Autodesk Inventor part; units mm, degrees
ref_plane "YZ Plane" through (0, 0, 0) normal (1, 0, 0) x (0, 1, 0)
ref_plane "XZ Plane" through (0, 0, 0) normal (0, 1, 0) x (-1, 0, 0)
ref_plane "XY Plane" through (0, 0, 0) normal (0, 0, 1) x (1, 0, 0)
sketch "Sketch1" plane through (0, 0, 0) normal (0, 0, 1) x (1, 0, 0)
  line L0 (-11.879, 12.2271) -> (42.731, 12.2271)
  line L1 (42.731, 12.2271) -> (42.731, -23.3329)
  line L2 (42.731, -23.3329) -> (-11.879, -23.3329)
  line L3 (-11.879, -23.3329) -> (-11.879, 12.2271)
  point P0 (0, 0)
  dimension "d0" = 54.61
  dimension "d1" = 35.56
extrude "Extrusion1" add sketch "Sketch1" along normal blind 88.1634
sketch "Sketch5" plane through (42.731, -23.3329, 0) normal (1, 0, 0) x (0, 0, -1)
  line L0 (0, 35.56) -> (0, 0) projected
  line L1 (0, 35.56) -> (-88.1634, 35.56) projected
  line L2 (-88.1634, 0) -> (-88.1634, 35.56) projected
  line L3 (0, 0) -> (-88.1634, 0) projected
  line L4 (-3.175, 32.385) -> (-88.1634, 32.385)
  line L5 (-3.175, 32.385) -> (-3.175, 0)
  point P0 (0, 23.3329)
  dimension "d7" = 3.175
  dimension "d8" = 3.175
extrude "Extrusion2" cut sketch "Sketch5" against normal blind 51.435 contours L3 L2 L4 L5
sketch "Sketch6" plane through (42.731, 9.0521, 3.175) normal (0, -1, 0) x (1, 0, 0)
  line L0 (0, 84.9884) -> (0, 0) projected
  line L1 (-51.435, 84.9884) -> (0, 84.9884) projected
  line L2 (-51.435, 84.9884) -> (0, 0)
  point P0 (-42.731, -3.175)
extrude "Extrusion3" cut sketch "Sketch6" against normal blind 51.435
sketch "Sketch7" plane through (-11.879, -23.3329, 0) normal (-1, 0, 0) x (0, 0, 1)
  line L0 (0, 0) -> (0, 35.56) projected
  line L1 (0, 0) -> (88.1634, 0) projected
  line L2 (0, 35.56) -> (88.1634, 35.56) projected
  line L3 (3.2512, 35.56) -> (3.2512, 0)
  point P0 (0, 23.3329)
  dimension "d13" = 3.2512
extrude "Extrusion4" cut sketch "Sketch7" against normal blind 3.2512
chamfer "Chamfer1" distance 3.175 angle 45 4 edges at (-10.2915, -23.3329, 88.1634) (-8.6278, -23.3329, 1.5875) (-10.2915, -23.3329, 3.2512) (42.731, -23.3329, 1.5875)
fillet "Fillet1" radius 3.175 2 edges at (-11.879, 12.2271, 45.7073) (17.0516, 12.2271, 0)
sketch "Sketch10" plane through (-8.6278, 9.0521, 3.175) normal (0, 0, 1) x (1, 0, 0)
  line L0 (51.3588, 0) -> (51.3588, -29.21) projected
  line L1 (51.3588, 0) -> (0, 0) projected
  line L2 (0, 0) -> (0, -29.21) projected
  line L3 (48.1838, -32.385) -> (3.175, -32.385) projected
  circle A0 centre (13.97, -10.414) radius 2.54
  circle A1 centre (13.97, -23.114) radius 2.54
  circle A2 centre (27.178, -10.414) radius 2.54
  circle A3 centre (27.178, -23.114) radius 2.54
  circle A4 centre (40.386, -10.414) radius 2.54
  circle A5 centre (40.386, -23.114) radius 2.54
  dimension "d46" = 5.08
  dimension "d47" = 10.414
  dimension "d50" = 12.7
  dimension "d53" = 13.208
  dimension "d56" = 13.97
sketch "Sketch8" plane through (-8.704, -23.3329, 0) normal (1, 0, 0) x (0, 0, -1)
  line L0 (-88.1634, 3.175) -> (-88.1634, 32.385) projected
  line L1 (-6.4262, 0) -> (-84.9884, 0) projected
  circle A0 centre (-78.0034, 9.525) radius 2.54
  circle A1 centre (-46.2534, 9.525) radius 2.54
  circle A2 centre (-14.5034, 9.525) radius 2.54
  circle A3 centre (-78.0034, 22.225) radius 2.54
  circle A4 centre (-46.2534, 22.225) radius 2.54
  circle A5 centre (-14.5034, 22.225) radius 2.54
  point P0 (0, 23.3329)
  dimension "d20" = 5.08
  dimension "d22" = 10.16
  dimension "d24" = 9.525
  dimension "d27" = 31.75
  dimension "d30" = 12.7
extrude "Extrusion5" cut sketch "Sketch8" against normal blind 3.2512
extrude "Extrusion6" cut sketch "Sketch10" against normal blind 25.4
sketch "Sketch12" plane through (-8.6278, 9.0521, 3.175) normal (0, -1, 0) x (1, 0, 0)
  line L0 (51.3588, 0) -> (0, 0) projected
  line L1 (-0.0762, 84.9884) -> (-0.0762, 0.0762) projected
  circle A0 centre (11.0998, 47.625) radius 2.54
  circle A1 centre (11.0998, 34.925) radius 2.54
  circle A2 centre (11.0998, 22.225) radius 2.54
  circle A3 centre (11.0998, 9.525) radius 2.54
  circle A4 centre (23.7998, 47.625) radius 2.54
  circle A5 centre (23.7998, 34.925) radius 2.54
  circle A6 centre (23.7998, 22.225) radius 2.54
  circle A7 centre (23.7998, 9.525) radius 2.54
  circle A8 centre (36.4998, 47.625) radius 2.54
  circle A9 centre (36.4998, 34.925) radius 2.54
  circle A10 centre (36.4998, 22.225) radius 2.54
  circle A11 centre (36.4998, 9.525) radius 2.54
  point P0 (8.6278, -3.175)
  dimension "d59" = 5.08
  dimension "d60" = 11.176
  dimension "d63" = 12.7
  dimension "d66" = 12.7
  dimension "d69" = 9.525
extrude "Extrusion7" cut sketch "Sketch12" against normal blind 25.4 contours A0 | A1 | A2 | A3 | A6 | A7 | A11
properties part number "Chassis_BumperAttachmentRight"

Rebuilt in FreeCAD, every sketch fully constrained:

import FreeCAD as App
import Part
import Sketcher
Q = App.Units.Quantity


def edges_at(feature, points):
    """Names of the edges that pass closest to the given points."""
    edges = feature.Shape.Edges
    near = lambda p: min(range(len(edges)), key=lambda i: edges[i].distToShape(Part.Vertex(*p))[0])
    return sorted({f"Edge{near(p) + 1}" for p in points})


def add_polygon(sketch, points):
    """Adds a closed chain of lines whose ends are joined by coincident constraints."""
    first, n = sketch.GeometryCount, len(points)
    for a, b in zip(points, points[1:] + points[:1]):
        sketch.addGeometry(Part.LineSegment(App.Vector(*a, 0), App.Vector(*b, 0)), False)
    for i in range(n):
        sketch.addConstraint(Sketcher.Constraint("Coincident", first + i, 2, first + (i + 1) % n, 1))

doc = App.newDocument("Part")
params = doc.addObject("Spreadsheet::Sheet", "Params")
for row, (alias, value) in enumerate([
    ("sketch1_height", "1.4 in"),
    ("sketch1_width", "2.15 in"),
    ("pad1_length", "3.471 in"),
    ("sketch2_width", "1.275 in"),
    ("sketch2_height", "3.346 in"),
    ("pocket1_length", "2.025 in"),
    ("sketch3_width", "2.025 in"),
    ("sketch3_height", "3.346 in"),
    ("pocket2_length", "2.025 in"),
    ("sketch4_height", "0.128 in"),
    ("sketch4_width", "1.4 in"),
    ("pocket3_length", "0.128 in"),
    ("chamfer_size", "0.125 in"),
    ("fillet_radius", "0.125 in"),
    ("sketch5_diameter", "0.2 in"),
    ("pocket4_length", "0.128 in"),
    ("sketch6_diameter", "0.2 in"),
    ("pocket5_length", "1 in"),
    ("sketch7_diameter", "0.2 in"),
    ("pocket6_length", "1 in"),
], start=1):
    params.set(f"A{row}", alias)
    params.set(f"B{row}", "=" + value)
    params.setAlias(f"B{row}", alias)

body = doc.addObject("PartDesign::Body", "Body")

# Sketch on XY plane
sketch1 = body.newObject("Sketcher::SketchObject", "Sketch")
sketch1.AttachmentSupport = (doc.getObject("XY_Plane"), [""])
sketch1.MapMode = "FlatFace"
add_polygon(sketch1, [(43, 12), (-12, 12), (-12, -23), (43, -23)])  # lines 0-3
sketch1.addConstraint(Sketcher.Constraint("Horizontal", 0))
sketch1.addConstraint(Sketcher.Constraint("Vertical", 1))
sketch1.addConstraint(Sketcher.Constraint("Horizontal", 2))
sketch1.addConstraint(Sketcher.Constraint("Vertical", 3))
sketch1.addConstraint(Sketcher.Constraint("DistanceY", 1, 2, 1, 1, Q("1.4 in")))
sketch1.addConstraint(Sketcher.Constraint("DistanceX", 0, 2, 0, 1, Q("2.15 in")))
sketch1.addConstraint(Sketcher.Constraint("DistanceX", 0, 2, -1, 1, Q("11.879 mm")))
sketch1.addConstraint(Sketcher.Constraint("DistanceY", -1, 1, 0, 2, Q("12.227 mm")))
sketch1.setExpression("Constraints[8]", "Params.sketch1_height")
sketch1.setExpression("Constraints[9]", "Params.sketch1_width")
pad1 = body.newObject("PartDesign::Pad", "Pad")
pad1.Profile = sketch1
pad1.setExpression("Length", "Params.pad1_length")

# Sketch on YZ plane
sketch2 = body.newObject("Sketcher::SketchObject", "Sketch001")
sketch2.AttachmentSupport = (doc.getObject("YZ_Plane"), [""])
sketch2.MapMode = "FlatFace"
sketch2.AttachmentOffset = App.Placement(App.Vector(0, 0, 42.731), App.Rotation())
add_polygon(sketch2, [(-23, 88), (-23, 3), (9, 3), (9, 88)])  # lines 0-3
sketch2.addConstraint(Sketcher.Constraint("Vertical", 0))
sketch2.addConstraint(Sketcher.Constraint("Horizontal", 1))
sketch2.addConstraint(Sketcher.Constraint("Vertical", 2))
sketch2.addConstraint(Sketcher.Constraint("Horizontal", 3))
sketch2.addConstraint(Sketcher.Constraint("DistanceY", -1, 1, 0, 2, Q("0.125 in")))
sketch2.addConstraint(Sketcher.Constraint("DistanceX", 1, 1, 1, 2, Q("1.275 in")))
sketch2.addConstraint(Sketcher.Constraint("DistanceY", 0, 2, 0, 1, Q("3.346 in")))
sketch2.addConstraint(Sketcher.Constraint("DistanceX", 0, 2, -1, 1, Q("23.333 mm")))
sketch2.setExpression("Constraints[9]", "Params.sketch2_width")
sketch2.setExpression("Constraints[10]", "Params.sketch2_height")
pocket1 = body.newObject("PartDesign::Pocket", "Pocket")
pocket1.Profile = sketch2
pocket1.setExpression("Length", "Params.pocket1_length")

# Sketch on XZ plane
sketch3 = body.newObject("Sketcher::SketchObject", "Sketch002")
sketch3.AttachmentSupport = (doc.getObject("XZ_Plane"), [""])
sketch3.MapMode = "FlatFace"
sketch3.AttachmentOffset = App.Placement(App.Vector(0, 0, -9.0521), App.Rotation())
add_polygon(sketch3, [(43, 3), (43, 88), (-9, 88)])  # lines 0-2
sketch3.addConstraint(Sketcher.Constraint("Vertical", 0))
sketch3.addConstraint(Sketcher.Constraint("Horizontal", 1))
sketch3.addConstraint(Sketcher.Constraint("DistanceX", 1, 2, 1, 1, Q("2.025 in")))
sketch3.addConstraint(Sketcher.Constraint("DistanceY", 0, 1, 0, 2, Q("3.346 in")))
sketch3.addConstraint(Sketcher.Constraint("DistanceY", -1, 1, 0, 2, Q("3.471 in")))
sketch3.addConstraint(Sketcher.Constraint("DistanceX", -1, 1, 0, 2, Q("42.731 mm")))
sketch3.setExpression("Constraints[5]", "Params.sketch3_width")
sketch3.setExpression("Constraints[6]", "Params.sketch3_height")
pocket2 = body.newObject("PartDesign::Pocket", "Pocket001")
pocket2.Profile = sketch3
pocket2.setExpression("Length", "Params.pocket2_length")

# Sketch on YZ plane
sketch4 = body.newObject("Sketcher::SketchObject", "Sketch003")
sketch4.AttachmentSupport = (doc.getObject("YZ_Plane"), [""])
sketch4.MapMode = "FlatFace"
sketch4.AttachmentOffset = App.Placement(App.Vector(0, 0, -11.879), App.Rotation())
add_polygon(sketch4, [(12.2, 0), (-23.3, 0), (-23.3, 3.3), (12.2, 3.3)])  # lines 0-3
sketch4.addConstraint(Sketcher.Constraint("Horizontal", 0))
sketch4.addConstraint(Sketcher.Constraint("Vertical", 1))
sketch4.addConstraint(Sketcher.Constraint("Horizontal", 2))
sketch4.addConstraint(Sketcher.Constraint("Vertical", 3))
sketch4.addConstraint(Sketcher.Constraint("PointOnObject", 0, 2, -1))
sketch4.addConstraint(Sketcher.Constraint("DistanceY", 1, 1, 1, 2, Q("0.128 in")))
sketch4.addConstraint(Sketcher.Constraint("DistanceX", 0, 2, 0, 1, Q("1.4 in")))
sketch4.addConstraint(Sketcher.Constraint("DistanceX", 0, 2, -1, 1, Q("23.333 mm")))
sketch4.setExpression("Constraints[9]", "Params.sketch4_height")
sketch4.setExpression("Constraints[10]", "Params.sketch4_width")
pocket3 = body.newObject("PartDesign::Pocket", "Pocket002")
pocket3.Profile = sketch4
pocket3.setExpression("Length", "Params.pocket3_length")
pocket3.Reversed = True
doc.recompute()

chamfer = body.newObject("PartDesign::Chamfer", "Chamfer")
chamfer.Base = (pocket3, edges_at(pocket3, [
    (-10.291, -23.333, 88.163),
    (-8.628, -23.333, 1.587),
    (-10.291, -23.333, 3.251),
    (42.731, -23.333, 1.587),
]))
chamfer.setExpression("Size", "Params.chamfer_size")
doc.recompute()

fillet = body.newObject("PartDesign::Fillet", "Fillet")
fillet.Base = (chamfer, edges_at(chamfer, [(-11.879, 12.227, 45.707), (17.052, 12.227, 0)]))
fillet.setExpression("Radius", "Params.fillet_radius")

# Sketch on YZ plane
sketch5 = body.newObject("Sketcher::SketchObject", "Sketch004")
sketch5.AttachmentSupport = (doc.getObject("YZ_Plane"), [""])
sketch5.MapMode = "FlatFace"
sketch5.AttachmentOffset = App.Placement(App.Vector(0, 0, -8.704), App.Rotation())
sketch5.addGeometry(Part.Circle(App.Vector(-13.8, 78, 0), App.Vector(0, 0, 1), 2.5), False)
sketch5.addGeometry(Part.Circle(App.Vector(-13.8, 46.3, 0), App.Vector(0, 0, 1), 2.5), False)
sketch5.addGeometry(Part.Circle(App.Vector(-13.8, 14.5, 0), App.Vector(0, 0, 1), 2.5), False)
sketch5.addGeometry(Part.Circle(App.Vector(-1.1, 78, 0), App.Vector(0, 0, 1), 2.5), False)
sketch5.addGeometry(Part.Circle(App.Vector(-1.1, 46.3, 0), App.Vector(0, 0, 1), 2.5), False)
sketch5.addGeometry(Part.Circle(App.Vector(-1.1, 14.5, 0), App.Vector(0, 0, 1), 2.5), False)
sketch5.addConstraint(Sketcher.Constraint("Equal", 0, 1))
sketch5.addConstraint(Sketcher.Constraint("Equal", 1, 2))
sketch5.addConstraint(Sketcher.Constraint("Equal", 2, 3))
sketch5.addConstraint(Sketcher.Constraint("Equal", 3, 4))
sketch5.addConstraint(Sketcher.Constraint("Equal", 4, 5))
sketch5.addConstraint(Sketcher.Constraint("Horizontal", 0, 3, 3, 3))
sketch5.addConstraint(Sketcher.Constraint("Horizontal", 1, 3, 4, 3))
sketch5.addConstraint(Sketcher.Constraint("Horizontal", 2, 3, 5, 3))
sketch5.addConstraint(Sketcher.Constraint("Vertical", 0, 3, 1, 3))
sketch5.addConstraint(Sketcher.Constraint("Vertical", 1, 3, 2, 3))
sketch5.addConstraint(Sketcher.Constraint("Vertical", 3, 3, 4, 3))
sketch5.addConstraint(Sketcher.Constraint("Vertical", 4, 3, 5, 3))
sketch5.addConstraint(Sketcher.Constraint("Diameter", 0, Q("0.2 in")))
sketch5.addConstraint(Sketcher.Constraint("DistanceX", 0, 3, 3, 3, Q("0.5 in")))
sketch5.addConstraint(Sketcher.Constraint("DistanceY", 1, 3, 0, 3, Q("1.25 in")))
sketch5.addConstraint(Sketcher.Constraint("DistanceY", 2, 3, 1, 3, Q("1.25 in")))
sketch5.addConstraint(Sketcher.Constraint("DistanceY", -1, 1, 0, 3, Q("3.071 in")))
sketch5.addConstraint(Sketcher.Constraint("DistanceX", 0, 3, -1, 1, Q("13.808 mm")))
sketch5.setExpression("Constraints[12]", "Params.sketch5_diameter")
pocket4 = body.newObject("PartDesign::Pocket", "Pocket003")
pocket4.Profile = sketch5
pocket4.setExpression("Length", "Params.pocket4_length")

# Sketch on XY plane
sketch6 = body.newObject("Sketcher::SketchObject", "Sketch005")
sketch6.AttachmentSupport = (doc.getObject("XY_Plane"), [""])
sketch6.MapMode = "FlatFace"
sketch6.AttachmentOffset = App.Placement(App.Vector(0, 0, 0.125 * 25.4), App.Rotation())
sketch6.addGeometry(Part.Circle(App.Vector(5.3, -1.4, 0), App.Vector(0, 0, 1), 2.5), False)
sketch6.addGeometry(Part.Circle(App.Vector(5.3, -14.1, 0), App.Vector(0, 0, 1), 2.5), False)
sketch6.addGeometry(Part.Circle(App.Vector(18.6, -1.4, 0), App.Vector(0, 0, 1), 2.5), False)
sketch6.addGeometry(Part.Circle(App.Vector(18.6, -14.1, 0), App.Vector(0, 0, 1), 2.5), False)
sketch6.addGeometry(Part.Circle(App.Vector(31.8, -1.4, 0), App.Vector(0, 0, 1), 2.5), False)
sketch6.addGeometry(Part.Circle(App.Vector(31.8, -14.1, 0), App.Vector(0, 0, 1), 2.5), False)
sketch6.addConstraint(Sketcher.Constraint("Equal", 0, 1))
sketch6.addConstraint(Sketcher.Constraint("Equal", 1, 2))
sketch6.addConstraint(Sketcher.Constraint("Equal", 2, 3))
sketch6.addConstraint(Sketcher.Constraint("Equal", 3, 4))
sketch6.addConstraint(Sketcher.Constraint("Equal", 4, 5))
sketch6.addConstraint(Sketcher.Constraint("Horizontal", 0, 3, 2, 3))
sketch6.addConstraint(Sketcher.Constraint("Horizontal", 1, 3, 3, 3))
sketch6.addConstraint(Sketcher.Constraint("Horizontal", 2, 3, 4, 3))
sketch6.addConstraint(Sketcher.Constraint("Horizontal", 3, 3, 5, 3))
sketch6.addConstraint(Sketcher.Constraint("Vertical", 0, 3, 1, 3))
sketch6.addConstraint(Sketcher.Constraint("Vertical", 2, 3, 3, 3))
sketch6.addConstraint(Sketcher.Constraint("Vertical", 4, 3, 5, 3))
sketch6.addConstraint(Sketcher.Constraint("Diameter", 0, Q("0.2 in")))
sketch6.addConstraint(Sketcher.Constraint("DistanceY", 1, 3, 0, 3, Q("0.5 in")))
sketch6.addConstraint(Sketcher.Constraint("DistanceX", 0, 3, 2, 3, Q("0.52 in")))
sketch6.addConstraint(Sketcher.Constraint("DistanceX", 2, 3, 4, 3, Q("0.52 in")))
sketch6.addConstraint(Sketcher.Constraint("DistanceX", -1, 1, 0, 3, Q("5.3422 mm")))
sketch6.addConstraint(Sketcher.Constraint("DistanceY", 0, 3, -1, 1, Q("1.362 mm")))
sketch6.setExpression("Constraints[12]", "Params.sketch6_diameter")
pocket5 = body.newObject("PartDesign::Pocket", "Pocket004")
pocket5.Profile = sketch6
pocket5.setExpression("Length", "Params.pocket5_length")

# Sketch on XZ plane
sketch7 = body.newObject("Sketcher::SketchObject", "Sketch006")
sketch7.AttachmentSupport = (doc.getObject("XZ_Plane"), [""])
sketch7.MapMode = "FlatFace"
sketch7.AttachmentOffset = App.Placement(App.Vector(0, 0, -9.0521), App.Rotation())
sketch7.addGeometry(Part.Circle(App.Vector(2.5, 50.8, 0), App.Vector(0, 0, 1), 2.5), False)
sketch7.addGeometry(Part.Circle(App.Vector(2.5, 38.1, 0), App.Vector(0, 0, 1), 2.5), False)
sketch7.addGeometry(Part.Circle(App.Vector(2.5, 25.4, 0), App.Vector(0, 0, 1), 2.5), False)
sketch7.addGeometry(Part.Circle(App.Vector(2.5, 12.7, 0), App.Vector(0, 0, 1), 2.5), False)
sketch7.addGeometry(Part.Circle(App.Vector(15.2, 25.4, 0), App.Vector(0, 0, 1), 2.5), False)
sketch7.addGeometry(Part.Circle(App.Vector(15.2, 12.7, 0), App.Vector(0, 0, 1), 2.5), False)
sketch7.addGeometry(Part.Circle(App.Vector(27.9, 12.7, 0), App.Vector(0, 0, 1), 2.5), False)
sketch7.addConstraint(Sketcher.Constraint("Equal", 0, 1))
sketch7.addConstraint(Sketcher.Constraint("Equal", 1, 2))
sketch7.addConstraint(Sketcher.Constraint("Equal", 2, 3))
sketch7.addConstraint(Sketcher.Constraint("Equal", 3, 4))
sketch7.addConstraint(Sketcher.Constraint("Equal", 4, 5))
sketch7.addConstraint(Sketcher.Constraint("Equal", 5, 6))
sketch7.addConstraint(Sketcher.Constraint("Horizontal", 2, 3, 4, 3))
sketch7.addConstraint(Sketcher.Constraint("Horizontal", 3, 3, 5, 3))
sketch7.addConstraint(Sketcher.Constraint("Horizontal", 5, 3, 6, 3))
sketch7.addConstraint(Sketcher.Constraint("Vertical", 0, 3, 1, 3))
sketch7.addConstraint(Sketcher.Constraint("Vertical", 1, 3, 2, 3))
sketch7.addConstraint(Sketcher.Constraint("Vertical", 2, 3, 3, 3))
sketch7.addConstraint(Sketcher.Constraint("Vertical", 4, 3, 5, 3))
sketch7.addConstraint(Sketcher.Constraint("Diameter", 0, Q("0.2 in")))
sketch7.addConstraint(Sketcher.Constraint("DistanceY", -1, 1, 3, 3, Q("0.5 in")))
sketch7.addConstraint(Sketcher.Constraint("DistanceY", 1, 3, 0, 3, Q("0.5 in")))
sketch7.addConstraint(Sketcher.Constraint("DistanceY", 2, 3, 1, 3, Q("0.5 in")))
sketch7.addConstraint(Sketcher.Constraint("DistanceY", 3, 3, 2, 3, Q("0.5 in")))
sketch7.addConstraint(Sketcher.Constraint("DistanceX", 2, 3, 4, 3, Q("0.5 in")))
sketch7.addConstraint(Sketcher.Constraint("DistanceX", 5, 3, 6, 3, Q("0.5 in")))
sketch7.addConstraint(Sketcher.Constraint("DistanceX", -1, 1, 0, 3, Q("2.472 mm")))
sketch7.setExpression("Constraints[13]", "Params.sketch7_diameter")
pocket6 = body.newObject("PartDesign::Pocket", "Pocket005")
pocket6.Profile = sketch7
pocket6.setExpression("Length", "Params.pocket6_length")

doc.recompute()
